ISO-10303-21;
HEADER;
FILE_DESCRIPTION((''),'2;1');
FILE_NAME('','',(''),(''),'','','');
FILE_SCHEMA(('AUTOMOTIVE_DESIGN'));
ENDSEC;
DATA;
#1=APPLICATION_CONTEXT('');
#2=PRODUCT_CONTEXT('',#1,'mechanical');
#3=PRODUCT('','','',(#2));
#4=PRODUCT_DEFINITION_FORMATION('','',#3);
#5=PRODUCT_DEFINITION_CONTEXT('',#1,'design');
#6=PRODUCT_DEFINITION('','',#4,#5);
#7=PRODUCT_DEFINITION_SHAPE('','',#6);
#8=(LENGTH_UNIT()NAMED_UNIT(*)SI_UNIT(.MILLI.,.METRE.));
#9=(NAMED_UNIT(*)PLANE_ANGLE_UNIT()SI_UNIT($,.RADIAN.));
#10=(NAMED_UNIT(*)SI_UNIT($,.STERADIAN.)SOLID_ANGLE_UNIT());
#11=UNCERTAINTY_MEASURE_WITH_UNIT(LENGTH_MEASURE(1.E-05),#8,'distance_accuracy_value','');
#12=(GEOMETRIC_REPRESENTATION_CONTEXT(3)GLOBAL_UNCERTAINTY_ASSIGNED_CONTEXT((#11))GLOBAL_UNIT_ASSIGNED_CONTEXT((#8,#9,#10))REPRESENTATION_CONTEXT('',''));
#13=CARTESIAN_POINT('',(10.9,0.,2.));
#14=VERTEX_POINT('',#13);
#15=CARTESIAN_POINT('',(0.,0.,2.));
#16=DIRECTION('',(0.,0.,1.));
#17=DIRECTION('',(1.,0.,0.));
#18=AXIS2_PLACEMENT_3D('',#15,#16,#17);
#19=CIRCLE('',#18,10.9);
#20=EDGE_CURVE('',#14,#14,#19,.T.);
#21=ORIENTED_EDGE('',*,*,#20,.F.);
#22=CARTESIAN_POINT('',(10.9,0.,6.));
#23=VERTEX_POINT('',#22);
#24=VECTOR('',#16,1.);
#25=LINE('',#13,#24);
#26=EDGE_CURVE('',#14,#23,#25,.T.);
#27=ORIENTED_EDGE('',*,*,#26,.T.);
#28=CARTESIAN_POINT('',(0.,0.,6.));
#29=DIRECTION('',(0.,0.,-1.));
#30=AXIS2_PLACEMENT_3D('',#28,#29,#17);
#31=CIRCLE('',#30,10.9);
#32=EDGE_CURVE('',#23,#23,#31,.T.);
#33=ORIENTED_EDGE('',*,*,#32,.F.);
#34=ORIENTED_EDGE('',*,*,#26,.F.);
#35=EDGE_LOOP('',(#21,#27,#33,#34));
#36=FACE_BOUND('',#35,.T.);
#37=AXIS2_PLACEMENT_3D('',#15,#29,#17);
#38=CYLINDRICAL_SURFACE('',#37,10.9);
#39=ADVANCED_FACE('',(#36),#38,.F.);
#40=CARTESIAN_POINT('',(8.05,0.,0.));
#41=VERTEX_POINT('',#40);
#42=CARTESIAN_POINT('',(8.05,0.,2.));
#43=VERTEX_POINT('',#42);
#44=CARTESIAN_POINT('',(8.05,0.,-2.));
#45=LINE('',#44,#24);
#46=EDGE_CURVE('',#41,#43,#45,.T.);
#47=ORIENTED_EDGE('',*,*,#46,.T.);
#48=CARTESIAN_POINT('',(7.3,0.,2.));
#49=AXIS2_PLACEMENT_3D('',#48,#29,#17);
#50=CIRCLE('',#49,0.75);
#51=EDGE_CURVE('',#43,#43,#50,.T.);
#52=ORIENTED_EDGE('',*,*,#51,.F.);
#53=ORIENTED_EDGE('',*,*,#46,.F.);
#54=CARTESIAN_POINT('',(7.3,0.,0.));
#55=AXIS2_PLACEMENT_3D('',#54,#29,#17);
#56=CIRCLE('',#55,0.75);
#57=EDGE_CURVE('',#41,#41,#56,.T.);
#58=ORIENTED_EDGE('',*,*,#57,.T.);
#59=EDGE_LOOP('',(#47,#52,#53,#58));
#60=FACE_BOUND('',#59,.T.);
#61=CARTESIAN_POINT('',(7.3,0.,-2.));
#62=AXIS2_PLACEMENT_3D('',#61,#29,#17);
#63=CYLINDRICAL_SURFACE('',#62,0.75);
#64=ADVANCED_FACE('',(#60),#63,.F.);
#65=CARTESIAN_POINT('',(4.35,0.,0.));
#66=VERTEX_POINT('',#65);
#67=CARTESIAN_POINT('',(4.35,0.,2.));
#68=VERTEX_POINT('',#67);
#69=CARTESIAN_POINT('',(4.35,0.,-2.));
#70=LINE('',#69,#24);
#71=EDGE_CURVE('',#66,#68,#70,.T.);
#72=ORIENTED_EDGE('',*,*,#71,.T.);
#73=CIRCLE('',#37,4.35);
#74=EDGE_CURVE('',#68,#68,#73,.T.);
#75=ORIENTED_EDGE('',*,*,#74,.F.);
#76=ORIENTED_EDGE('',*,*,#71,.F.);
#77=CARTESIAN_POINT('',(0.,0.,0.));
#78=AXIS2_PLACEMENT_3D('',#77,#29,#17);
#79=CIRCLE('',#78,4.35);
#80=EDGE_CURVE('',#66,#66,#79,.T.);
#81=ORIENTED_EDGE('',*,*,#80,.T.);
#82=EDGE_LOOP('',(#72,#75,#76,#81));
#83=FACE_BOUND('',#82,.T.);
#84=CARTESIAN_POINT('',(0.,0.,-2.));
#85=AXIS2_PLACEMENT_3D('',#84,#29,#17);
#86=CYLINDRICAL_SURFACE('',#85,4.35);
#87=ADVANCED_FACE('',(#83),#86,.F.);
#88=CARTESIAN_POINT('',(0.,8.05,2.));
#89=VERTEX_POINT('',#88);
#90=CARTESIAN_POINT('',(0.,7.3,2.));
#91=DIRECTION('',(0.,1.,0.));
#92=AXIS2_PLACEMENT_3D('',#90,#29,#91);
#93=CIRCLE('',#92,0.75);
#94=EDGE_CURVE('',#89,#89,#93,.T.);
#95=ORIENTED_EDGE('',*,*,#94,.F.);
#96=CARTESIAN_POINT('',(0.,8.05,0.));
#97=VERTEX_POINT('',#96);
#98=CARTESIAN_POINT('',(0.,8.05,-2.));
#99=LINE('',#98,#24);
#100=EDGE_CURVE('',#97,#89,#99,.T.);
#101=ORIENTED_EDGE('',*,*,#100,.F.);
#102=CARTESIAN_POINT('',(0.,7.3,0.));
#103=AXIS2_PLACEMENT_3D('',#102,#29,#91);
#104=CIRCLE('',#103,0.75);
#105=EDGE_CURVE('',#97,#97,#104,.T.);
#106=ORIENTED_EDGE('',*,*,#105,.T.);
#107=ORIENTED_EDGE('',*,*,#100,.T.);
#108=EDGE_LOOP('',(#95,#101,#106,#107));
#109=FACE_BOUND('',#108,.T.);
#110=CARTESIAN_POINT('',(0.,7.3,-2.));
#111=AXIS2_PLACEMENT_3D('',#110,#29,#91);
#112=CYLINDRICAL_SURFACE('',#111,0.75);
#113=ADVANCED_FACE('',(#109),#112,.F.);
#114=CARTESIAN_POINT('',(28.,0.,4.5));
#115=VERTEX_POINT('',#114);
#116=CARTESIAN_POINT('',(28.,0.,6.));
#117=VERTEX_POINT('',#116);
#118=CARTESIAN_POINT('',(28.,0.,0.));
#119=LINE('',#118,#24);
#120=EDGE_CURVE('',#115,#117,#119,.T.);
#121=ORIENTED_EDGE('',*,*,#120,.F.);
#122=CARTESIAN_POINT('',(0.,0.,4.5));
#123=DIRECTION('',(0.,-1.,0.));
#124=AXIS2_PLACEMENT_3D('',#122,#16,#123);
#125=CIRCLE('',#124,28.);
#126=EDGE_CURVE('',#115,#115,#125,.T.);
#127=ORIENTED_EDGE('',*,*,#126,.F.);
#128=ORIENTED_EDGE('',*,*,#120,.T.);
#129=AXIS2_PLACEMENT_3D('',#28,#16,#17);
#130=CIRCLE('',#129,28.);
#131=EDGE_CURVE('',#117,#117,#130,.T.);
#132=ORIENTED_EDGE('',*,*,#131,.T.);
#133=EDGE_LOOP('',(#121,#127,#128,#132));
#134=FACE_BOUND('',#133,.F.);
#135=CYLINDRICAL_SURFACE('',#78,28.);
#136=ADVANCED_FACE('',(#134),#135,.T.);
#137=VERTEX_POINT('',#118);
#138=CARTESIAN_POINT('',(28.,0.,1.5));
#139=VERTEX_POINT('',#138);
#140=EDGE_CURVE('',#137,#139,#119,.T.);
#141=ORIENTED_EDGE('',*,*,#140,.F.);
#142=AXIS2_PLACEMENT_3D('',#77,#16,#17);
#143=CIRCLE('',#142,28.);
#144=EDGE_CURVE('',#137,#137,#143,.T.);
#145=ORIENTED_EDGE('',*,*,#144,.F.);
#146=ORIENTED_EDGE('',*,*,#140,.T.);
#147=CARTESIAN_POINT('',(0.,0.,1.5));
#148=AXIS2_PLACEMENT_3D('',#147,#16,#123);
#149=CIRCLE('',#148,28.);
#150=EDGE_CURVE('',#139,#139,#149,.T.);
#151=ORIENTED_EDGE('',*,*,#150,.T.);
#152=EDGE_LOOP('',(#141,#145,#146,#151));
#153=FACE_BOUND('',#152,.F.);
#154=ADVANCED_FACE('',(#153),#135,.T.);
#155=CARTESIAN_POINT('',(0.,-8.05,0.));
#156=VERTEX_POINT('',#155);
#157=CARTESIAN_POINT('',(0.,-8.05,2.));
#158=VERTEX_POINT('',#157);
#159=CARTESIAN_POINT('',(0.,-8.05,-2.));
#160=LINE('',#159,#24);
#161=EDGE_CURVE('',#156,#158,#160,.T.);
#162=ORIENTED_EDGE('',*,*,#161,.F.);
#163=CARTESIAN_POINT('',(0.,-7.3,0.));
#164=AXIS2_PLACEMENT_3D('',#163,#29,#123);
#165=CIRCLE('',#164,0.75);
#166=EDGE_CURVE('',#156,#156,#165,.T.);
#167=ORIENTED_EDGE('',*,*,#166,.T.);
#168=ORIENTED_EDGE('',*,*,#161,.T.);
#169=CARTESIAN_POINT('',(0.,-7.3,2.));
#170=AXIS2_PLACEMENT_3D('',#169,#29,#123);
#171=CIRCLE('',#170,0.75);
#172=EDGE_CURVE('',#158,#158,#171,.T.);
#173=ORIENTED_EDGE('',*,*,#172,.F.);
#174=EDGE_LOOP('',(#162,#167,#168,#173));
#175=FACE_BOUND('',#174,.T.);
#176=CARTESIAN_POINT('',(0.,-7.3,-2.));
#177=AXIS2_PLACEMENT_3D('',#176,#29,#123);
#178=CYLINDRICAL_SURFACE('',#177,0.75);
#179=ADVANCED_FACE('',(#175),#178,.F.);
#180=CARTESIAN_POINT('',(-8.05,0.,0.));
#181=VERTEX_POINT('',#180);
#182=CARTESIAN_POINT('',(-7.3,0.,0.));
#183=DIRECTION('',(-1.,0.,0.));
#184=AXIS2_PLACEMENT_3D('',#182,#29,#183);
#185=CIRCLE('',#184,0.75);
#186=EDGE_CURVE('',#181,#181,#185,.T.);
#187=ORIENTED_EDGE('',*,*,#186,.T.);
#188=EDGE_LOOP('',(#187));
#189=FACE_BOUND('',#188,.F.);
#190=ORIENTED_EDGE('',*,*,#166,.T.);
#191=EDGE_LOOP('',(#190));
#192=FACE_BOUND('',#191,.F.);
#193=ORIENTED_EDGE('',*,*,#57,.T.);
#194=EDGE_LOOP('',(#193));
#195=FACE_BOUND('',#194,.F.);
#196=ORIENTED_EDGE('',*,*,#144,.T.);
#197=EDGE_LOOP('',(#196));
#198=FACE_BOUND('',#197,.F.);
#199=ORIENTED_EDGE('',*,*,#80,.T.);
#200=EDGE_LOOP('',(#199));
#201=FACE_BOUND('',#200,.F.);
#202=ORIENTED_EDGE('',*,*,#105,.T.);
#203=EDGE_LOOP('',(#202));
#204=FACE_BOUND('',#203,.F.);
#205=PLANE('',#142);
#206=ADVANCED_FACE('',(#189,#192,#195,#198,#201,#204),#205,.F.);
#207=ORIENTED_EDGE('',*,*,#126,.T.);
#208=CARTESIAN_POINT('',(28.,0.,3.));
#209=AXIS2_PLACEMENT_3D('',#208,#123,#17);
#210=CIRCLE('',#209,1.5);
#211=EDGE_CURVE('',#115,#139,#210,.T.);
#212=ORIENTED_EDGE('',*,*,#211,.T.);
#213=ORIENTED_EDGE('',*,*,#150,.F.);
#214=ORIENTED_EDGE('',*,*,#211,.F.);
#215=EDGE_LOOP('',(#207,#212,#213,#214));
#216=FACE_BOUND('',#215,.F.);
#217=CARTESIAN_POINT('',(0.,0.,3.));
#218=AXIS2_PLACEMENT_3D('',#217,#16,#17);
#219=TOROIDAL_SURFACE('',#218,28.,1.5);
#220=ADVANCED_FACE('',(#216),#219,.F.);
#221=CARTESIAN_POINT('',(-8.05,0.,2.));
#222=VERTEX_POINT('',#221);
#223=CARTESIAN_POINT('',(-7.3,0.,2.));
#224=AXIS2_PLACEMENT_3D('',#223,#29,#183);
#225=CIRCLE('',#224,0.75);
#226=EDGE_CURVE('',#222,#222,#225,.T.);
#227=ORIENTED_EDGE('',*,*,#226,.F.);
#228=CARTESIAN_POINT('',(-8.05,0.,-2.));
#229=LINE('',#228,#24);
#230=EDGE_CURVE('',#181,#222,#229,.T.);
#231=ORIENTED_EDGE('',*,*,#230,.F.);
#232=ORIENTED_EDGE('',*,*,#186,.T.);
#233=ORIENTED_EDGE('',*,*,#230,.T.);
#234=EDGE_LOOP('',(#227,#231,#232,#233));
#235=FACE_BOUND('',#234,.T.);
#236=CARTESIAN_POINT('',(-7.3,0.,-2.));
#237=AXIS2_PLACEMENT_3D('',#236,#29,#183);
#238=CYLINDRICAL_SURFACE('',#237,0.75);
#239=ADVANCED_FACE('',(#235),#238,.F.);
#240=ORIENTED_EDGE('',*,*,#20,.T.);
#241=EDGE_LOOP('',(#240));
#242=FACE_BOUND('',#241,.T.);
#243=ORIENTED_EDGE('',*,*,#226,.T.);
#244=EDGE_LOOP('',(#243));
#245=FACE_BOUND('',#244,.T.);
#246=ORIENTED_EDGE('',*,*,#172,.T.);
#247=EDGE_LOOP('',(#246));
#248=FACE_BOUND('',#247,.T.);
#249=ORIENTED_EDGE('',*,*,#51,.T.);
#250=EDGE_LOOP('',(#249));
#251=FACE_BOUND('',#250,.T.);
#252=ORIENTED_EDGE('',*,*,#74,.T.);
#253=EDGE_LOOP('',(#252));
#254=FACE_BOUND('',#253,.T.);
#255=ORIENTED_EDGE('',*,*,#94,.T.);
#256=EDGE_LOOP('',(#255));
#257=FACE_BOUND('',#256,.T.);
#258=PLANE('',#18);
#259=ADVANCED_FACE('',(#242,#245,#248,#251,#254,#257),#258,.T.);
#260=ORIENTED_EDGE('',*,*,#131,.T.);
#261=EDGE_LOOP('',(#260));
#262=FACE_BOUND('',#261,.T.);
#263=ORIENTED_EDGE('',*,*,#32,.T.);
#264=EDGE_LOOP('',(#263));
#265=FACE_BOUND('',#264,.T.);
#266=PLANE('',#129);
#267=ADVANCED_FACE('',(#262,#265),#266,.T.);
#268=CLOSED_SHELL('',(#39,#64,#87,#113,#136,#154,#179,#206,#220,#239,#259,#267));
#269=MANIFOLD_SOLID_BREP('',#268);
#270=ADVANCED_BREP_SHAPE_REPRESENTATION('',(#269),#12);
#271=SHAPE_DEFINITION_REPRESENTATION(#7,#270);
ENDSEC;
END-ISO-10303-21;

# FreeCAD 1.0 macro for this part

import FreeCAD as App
import Part
import Sketcher

V = App.Vector

doc = App.newDocument("Part")
body = doc.addObject("PartDesign::Body", "Body")

# Sketch on XY plane
sketch1 = doc.addObject("Sketcher::SketchObject", "Sketch")
body.addObject(sketch1)
sketch1.AttachmentSupport = (doc.XY_Plane, [""])
sketch1.MapMode = "FlatFace"
sketch1.AttachmentOffset = App.Placement(V(0, 0, -2), App.Rotation())
sketch1.addGeometry(Part.Circle(V(7.3, 0, 0), V(0, 0, 1), 0.75), False)
sketch1.addConstraint(Sketcher.Constraint("PointOnObject", 0, 3, -1))
sketch1.addConstraint(Sketcher.Constraint("Diameter", 0, 1.5))
sketch1.addConstraint(Sketcher.Constraint("DistanceX", -1, 1, 0, 3, 7.3))
pad1 = doc.addObject("PartDesign::Pad", "Pad")
body.addObject(pad1)
pad1.Profile = sketch1
pad1.Length = 10
body2 = doc.addObject("PartDesign::Body", "Body001")
body2.AllowCompound = True
doc.recompute()

body2.BaseFeature = body
doc.recompute()

body3 = doc.addObject("PartDesign::Body", "Body002")
body3.BaseFeature = body
body3.Placement = App.Placement(V(0, 0, 0), App.Rotation(V(0, 0, 1), 90))
boolean = doc.addObject("PartDesign::Boolean", "Boolean")
body2.addObject(boolean)
boolean.Type = "Fuse"
boolean.addObjects([body3])
doc.recompute()

body4 = doc.addObject("PartDesign::Body", "Body003")
body4.BaseFeature = body
body4.Placement = App.Placement(V(0, 0, 0), App.Rotation(V(0, 0, 1), 180))
boolean2 = doc.addObject("PartDesign::Boolean", "Boolean001")
body2.addObject(boolean2)
boolean2.Type = "Fuse"
boolean2.addObjects([body4])
doc.recompute()

body.Placement = App.Placement(V(0, 0, 0), App.Rotation(V(0, 0, 1), 270))
boolean3 = doc.addObject("PartDesign::Boolean", "Boolean002")
body2.addObject(boolean3)
boolean3.Type = "Fuse"
boolean3.addObjects([body])
body5 = doc.addObject("PartDesign::Body", "Body004")

# Sketch on XY plane
sketch2 = doc.addObject("Sketcher::SketchObject", "Sketch001")
body5.addObject(sketch2)
sketch2.AttachmentSupport = (doc.getObject("XY_Plane004"), [""])
sketch2.MapMode = "FlatFace"
sketch2.AttachmentOffset = App.Placement(V(0, 0, -2), App.Rotation())
sketch2.addGeometry(Part.Circle(V(0, 0, 0), V(0, 0, 1), 4.35), False)
sketch2.addConstraint(Sketcher.Constraint("Coincident", 0, 3, -1, 1))
sketch2.addConstraint(Sketcher.Constraint("Diameter", 0, 8.7))
pad2 = doc.addObject("PartDesign::Pad", "Pad001")
body5.addObject(pad2)
pad2.Profile = sketch2
pad2.Length = 10
body6 = doc.addObject("PartDesign::Body", "Body005")

# Sketch on XY plane
sketch3 = doc.addObject("Sketcher::SketchObject", "Sketch002")
body6.addObject(sketch3)
sketch3.AttachmentSupport = (doc.getObject("XY_Plane005"), [""])
sketch3.MapMode = "FlatFace"
sketch3.AttachmentOffset = App.Placement(V(0, 0, 2), App.Rotation())
sketch3.addGeometry(Part.Circle(V(0, 0, 0), V(0, 0, 1), 10.9), False)
sketch3.addConstraint(Sketcher.Constraint("Coincident", 0, 3, -1, 1))
sketch3.addConstraint(Sketcher.Constraint("Diameter", 0, 21.8))
pad3 = doc.addObject("PartDesign::Pad", "Pad002")
body6.addObject(pad3)
pad3.Profile = sketch3
pad3.Length = 10
body7 = doc.addObject("PartDesign::Body", "Body006")

# Sketch on XZ plane
sketch4 = doc.addObject("Sketcher::SketchObject", "Sketch003")
body7.addObject(sketch4)
sketch4.AttachmentSupport = (doc.getObject("XZ_Plane006"), [""])
sketch4.MapMode = "FlatFace"
sketch4.addGeometry(Part.Circle(V(28, 3, 0), V(0, 0, 1), 1.5), False)
sketch4.addConstraint(Sketcher.Constraint("Diameter", 0, 3.0))
sketch4.addConstraint(Sketcher.Constraint("DistanceX", -1, 1, 0, 3, 28.0))
sketch4.addConstraint(Sketcher.Constraint("DistanceY", -1, 1, 0, 3, 3.0))
revolution = doc.addObject("PartDesign::Revolution", "Revolution")
body7.addObject(revolution)
revolution.Profile = sketch4
revolution.ReferenceAxis = (sketch4, ["V_Axis"])
revolution.Angle = 360
body8 = doc.addObject("PartDesign::Body", "Body007")

# Sketch on XY plane
sketch5 = doc.addObject("Sketcher::SketchObject", "Sketch004")
body8.addObject(sketch5)
sketch5.AttachmentSupport = (doc.getObject("XY_Plane007"), [""])
sketch5.MapMode = "FlatFace"
sketch5.addGeometry(Part.Circle(V(0, 0, 0), V(0, 0, 1), 28), False)
sketch5.addConstraint(Sketcher.Constraint("Coincident", 0, 3, -1, 1))
sketch5.addConstraint(Sketcher.Constraint("Diameter", 0, 56.0))
pad4 = doc.addObject("PartDesign::Pad", "Pad003")
body8.addObject(pad4)
pad4.Profile = sketch5
pad4.Length = 6
doc.recompute()

boolean4 = doc.addObject("PartDesign::Boolean", "Boolean003")
body8.addObject(boolean4)
boolean4.Type = "Cut"
boolean4.addObjects([body7])
doc.recompute()

boolean5 = doc.addObject("PartDesign::Boolean", "Boolean004")
body8.addObject(boolean5)
boolean5.Type = "Cut"
boolean5.addObjects([body6])
doc.recompute()

boolean6 = doc.addObject("PartDesign::Boolean", "Boolean005")
body8.addObject(boolean6)
boolean6.Type = "Cut"
boolean6.addObjects([body5])
doc.recompute()

boolean7 = doc.addObject("PartDesign::Boolean", "Boolean006")
body8.addObject(boolean7)
boolean7.Type = "Cut"
boolean7.addObjects([body2])

doc.recompute()
